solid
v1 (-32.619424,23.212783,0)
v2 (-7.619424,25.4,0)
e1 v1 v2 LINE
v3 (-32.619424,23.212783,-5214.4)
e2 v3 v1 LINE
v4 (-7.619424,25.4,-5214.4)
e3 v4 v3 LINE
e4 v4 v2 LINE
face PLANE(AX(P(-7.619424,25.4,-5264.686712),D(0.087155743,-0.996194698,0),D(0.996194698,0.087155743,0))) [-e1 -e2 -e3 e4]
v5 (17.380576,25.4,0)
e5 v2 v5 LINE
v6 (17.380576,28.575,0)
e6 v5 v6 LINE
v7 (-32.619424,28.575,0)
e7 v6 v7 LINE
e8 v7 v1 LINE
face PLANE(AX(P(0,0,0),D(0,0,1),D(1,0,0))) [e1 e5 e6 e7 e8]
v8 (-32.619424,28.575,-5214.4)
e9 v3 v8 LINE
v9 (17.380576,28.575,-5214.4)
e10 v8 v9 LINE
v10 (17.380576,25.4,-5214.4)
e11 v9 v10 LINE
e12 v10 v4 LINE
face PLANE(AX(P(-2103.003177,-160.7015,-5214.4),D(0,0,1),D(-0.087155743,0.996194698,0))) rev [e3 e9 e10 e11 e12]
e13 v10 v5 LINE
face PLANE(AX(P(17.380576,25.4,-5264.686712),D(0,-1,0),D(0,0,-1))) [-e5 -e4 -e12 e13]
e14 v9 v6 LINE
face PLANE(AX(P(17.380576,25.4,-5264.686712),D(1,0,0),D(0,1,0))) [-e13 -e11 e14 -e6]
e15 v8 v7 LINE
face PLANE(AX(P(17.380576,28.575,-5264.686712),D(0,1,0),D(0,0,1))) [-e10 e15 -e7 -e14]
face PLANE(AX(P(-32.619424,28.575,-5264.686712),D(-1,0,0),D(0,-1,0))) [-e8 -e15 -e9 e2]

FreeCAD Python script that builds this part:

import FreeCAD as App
import Part
import Sketcher
from FreeCAD import Vector
Q = App.Units.Quantity

doc = App.newDocument("Part")
body = doc.addObject("PartDesign::Body", "Body")

# Sketch on XY plane
sketch1 = body.newObject("Sketcher::SketchObject", "Sketch")
sketch1.AttachmentSupport = (doc.getObject("XY_Plane"), [""])
sketch1.MapMode = "FlatFace"
sketch1.addGeometry(Part.LineSegment(Vector(-32.6, 23.2, 0), Vector(-7.6, 25.4, 0)), False)
sketch1.addGeometry(Part.LineSegment(Vector(-7.6, 25.4, 0), Vector(17.4, 25.4, 0)), False)
sketch1.addGeometry(Part.LineSegment(Vector(17.4, 25.4, 0), Vector(17.4, 28.6, 0)), False)
sketch1.addGeometry(Part.LineSegment(Vector(17.4, 28.6, 0), Vector(-32.6, 28.6, 0)), False)
sketch1.addGeometry(Part.LineSegment(Vector(-32.6, 28.6, 0), Vector(-32.6, 23.2, 0)), False)
sketch1.addConstraint(Sketcher.Constraint("Coincident", 0, 2, 1, 1))
sketch1.addConstraint(Sketcher.Constraint("Coincident", 1, 2, 2, 1))
sketch1.addConstraint(Sketcher.Constraint("Coincident", 2, 2, 3, 1))
sketch1.addConstraint(Sketcher.Constraint("Coincident", 3, 2, 4, 1))
sketch1.addConstraint(Sketcher.Constraint("Coincident", 4, 2, 0, 1))
sketch1.addConstraint(Sketcher.Constraint("Horizontal", 1))
sketch1.addConstraint(Sketcher.Constraint("Vertical", 2))
sketch1.addConstraint(Sketcher.Constraint("Horizontal", 3))
sketch1.addConstraint(Sketcher.Constraint("Vertical", 4))
sketch1.addConstraint(Sketcher.Constraint("DistanceX", 1, 1, 1, 2, Q("25 mm")))
sketch1.addConstraint(Sketcher.Constraint("DistanceX", 3, 2, 3, 1, Q("50 mm")))
sketch1.addConstraint(Sketcher.Constraint("Angle", 0, Q("5 deg")))
sketch1.addConstraint(Sketcher.Constraint("DistanceY", -1, 1, 0, 2, Q("25.4 mm")))
sketch1.addConstraint(Sketcher.Constraint("DistanceY", 2, 1, 2, 2, Q("3.175 mm")))
sketch1.addConstraint(Sketcher.Constraint("DistanceX", 0, 2, -1, 1, Q("7.619424 mm")))
pad1 = body.newObject("PartDesign::Pad", "Pad")
pad1.Profile = sketch1
pad1.Length = 5214.4
pad1.Reversed = True

doc.recompute()
